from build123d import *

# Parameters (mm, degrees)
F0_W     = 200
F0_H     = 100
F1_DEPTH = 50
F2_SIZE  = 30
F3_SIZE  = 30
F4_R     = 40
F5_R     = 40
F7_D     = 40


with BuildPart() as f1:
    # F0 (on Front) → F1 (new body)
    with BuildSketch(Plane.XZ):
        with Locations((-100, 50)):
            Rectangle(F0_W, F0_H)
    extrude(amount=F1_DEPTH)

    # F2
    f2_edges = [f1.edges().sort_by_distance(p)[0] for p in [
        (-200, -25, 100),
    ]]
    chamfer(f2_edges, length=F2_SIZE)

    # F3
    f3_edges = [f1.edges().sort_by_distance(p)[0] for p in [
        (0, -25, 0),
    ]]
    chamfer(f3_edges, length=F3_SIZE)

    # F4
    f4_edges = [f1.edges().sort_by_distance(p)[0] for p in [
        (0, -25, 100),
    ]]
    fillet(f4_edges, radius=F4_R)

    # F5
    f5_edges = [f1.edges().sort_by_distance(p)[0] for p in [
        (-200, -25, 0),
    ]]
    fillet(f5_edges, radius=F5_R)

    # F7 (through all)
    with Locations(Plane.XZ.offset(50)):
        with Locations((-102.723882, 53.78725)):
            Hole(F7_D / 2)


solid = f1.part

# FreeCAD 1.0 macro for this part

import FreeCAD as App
import Part
import Sketcher
from FreeCAD import Vector


def edges_at(feature, points):
    """Names of the edges that pass closest to the given points."""
    edges = feature.Shape.Edges
    near = lambda p: min(range(len(edges)), key=lambda i: edges[i].distToShape(Part.Vertex(*p))[0])
    return sorted({f"Edge{near(p) + 1}" for p in points})

doc = App.newDocument("Part")
params = doc.addObject("Spreadsheet::Sheet", "Params")
for row, (alias, value) in enumerate([
    ("sketch1_width", "200 mm"),
    ("sketch1_height", "100 mm"),
    ("pad1_length", "50 mm"),
    ("chamfer_size", "30 mm"),
    ("chamfer2_size", "30 mm"),
    ("fillet_radius", "40 mm"),
    ("fillet2_radius", "40 mm"),
    ("sketch2_diameter", "40 mm"),
    ("hole_diameter", "40 mm"),
], start=1):
    params.set(f"A{row}", alias)
    params.set(f"B{row}", "=" + value)
    params.setAlias(f"B{row}", alias)

body = doc.addObject("PartDesign::Body", "Body")

sketch1 = body.newObject("Sketcher::SketchObject", "Sketch")
sketch1.AttachmentSupport = (doc.getObject("XZ_Plane"), [""])
sketch1.MapMode = "FlatFace"
sketch1.addGeometry([
    Part.LineSegment(Vector(-200, 100, 0), Vector(-200, 0, 0)),
    Part.LineSegment(Vector(-200, 0, 0), Vector(0, 0, 0)),
    Part.LineSegment(Vector(0, 0, 0), Vector(0, 100, 0)),
    Part.LineSegment(Vector(0, 100, 0), Vector(-200, 100, 0)),
], False)
sketch1.addConstraint([
    Sketcher.Constraint("Coincident", 0, 2, 1, 1),
    Sketcher.Constraint("Coincident", 1, 2, 2, 1),
    Sketcher.Constraint("Coincident", 2, 2, 3, 1),
    Sketcher.Constraint("Coincident", 3, 2, 0, 1),
    Sketcher.Constraint("Vertical", 0),
    Sketcher.Constraint("Horizontal", 1),
    Sketcher.Constraint("Vertical", 2),
    Sketcher.Constraint("Horizontal", 3),
    Sketcher.Constraint("Coincident", 1, 2, -1, 1),
    Sketcher.Constraint("DistanceX", 1, 1, 1, 2, 200.0),
    Sketcher.Constraint("DistanceY", 0, 2, 0, 1, 100.0),
])
sketch1.setExpression("Constraints[9]", "Params.sketch1_width")
sketch1.setExpression("Constraints[10]", "Params.sketch1_height")
pad1 = body.newObject("PartDesign::Pad", "Pad")
pad1.Profile = sketch1
pad1.setExpression("Length", "Params.pad1_length")
doc.recompute()

chamfer = body.newObject("PartDesign::Chamfer", "Chamfer")
chamfer.Base = (pad1, edges_at(pad1, [(-200, -25, 100)]))
chamfer.setExpression("Size", "Params.chamfer_size")
doc.recompute()

chamfer2 = body.newObject("PartDesign::Chamfer", "Chamfer001")
chamfer2.Base = (chamfer, edges_at(chamfer, [(0, -25, 0)]))
chamfer2.setExpression("Size", "Params.chamfer2_size")
doc.recompute()

fillet = body.newObject("PartDesign::Fillet", "Fillet")
fillet.Base = (chamfer2, edges_at(chamfer2, [(0, -25, 100)]))
fillet.setExpression("Radius", "Params.fillet_radius")
doc.recompute()

fillet2 = body.newObject("PartDesign::Fillet", "Fillet001")
fillet2.Base = (fillet, edges_at(fillet, [(-200, -25, 0)]))
fillet2.setExpression("Radius", "Params.fillet2_radius")

sketch2 = body.newObject("Sketcher::SketchObject", "Sketch001")
sketch2.AttachmentSupport = (doc.getObject("XZ_Plane"), [""])
sketch2.MapMode = "FlatFace"
sketch2.AttachmentOffset = App.Placement(Vector(0, 0, 50), App.Rotation())
sketch2.addGeometry(Part.Circle(Vector(-102.723882, 53.78725, 0), Vector(0, 0, 1), 20), False)
sketch2.addConstraint([
    Sketcher.Constraint("Diameter", 0, 40.0),
    Sketcher.Constraint("DistanceY", -1, 1, 0, 3, 53.78725),
    Sketcher.Constraint("DistanceX", 0, 3, -1, 1, 102.723882),
])
sketch2.setExpression("Constraints[0]", "Params.sketch2_diameter")
doc.recompute()
hole = body.newObject("PartDesign::Hole", "Hole")
hole.Profile = sketch2
hole.ThreadType = "None"
hole.setExpression("Diameter", "Params.hole_diameter")
hole.DepthType = "ThroughAll"

doc.recompute()
